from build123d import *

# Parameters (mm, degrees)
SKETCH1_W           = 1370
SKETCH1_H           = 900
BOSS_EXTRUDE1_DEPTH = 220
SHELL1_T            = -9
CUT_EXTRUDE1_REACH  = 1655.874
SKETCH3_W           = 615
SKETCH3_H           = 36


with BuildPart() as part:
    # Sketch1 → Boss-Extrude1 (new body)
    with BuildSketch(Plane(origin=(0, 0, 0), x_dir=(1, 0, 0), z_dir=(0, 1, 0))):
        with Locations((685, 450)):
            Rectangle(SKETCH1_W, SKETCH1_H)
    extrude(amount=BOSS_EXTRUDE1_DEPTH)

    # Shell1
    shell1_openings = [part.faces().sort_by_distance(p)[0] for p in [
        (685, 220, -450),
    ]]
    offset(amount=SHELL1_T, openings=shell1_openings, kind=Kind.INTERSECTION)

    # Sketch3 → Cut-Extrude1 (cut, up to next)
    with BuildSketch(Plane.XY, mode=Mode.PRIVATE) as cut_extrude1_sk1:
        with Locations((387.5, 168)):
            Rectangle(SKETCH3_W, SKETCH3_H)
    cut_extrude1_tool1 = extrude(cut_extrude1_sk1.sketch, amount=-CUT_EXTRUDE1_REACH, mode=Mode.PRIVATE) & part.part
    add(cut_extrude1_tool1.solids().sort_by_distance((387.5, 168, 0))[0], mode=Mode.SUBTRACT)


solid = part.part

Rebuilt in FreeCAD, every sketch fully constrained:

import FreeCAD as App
import Part
import Sketcher
Q = App.Units.Quantity


def faces_at(feature, points):
    """Names of the faces that lie closest to the given points."""
    faces = feature.Shape.Faces
    near = lambda p: min(range(len(faces)), key=lambda i: faces[i].distToShape(Part.Vertex(*p))[0])
    return sorted({f"Face{near(p) + 1}" for p in points})


def add_polygon(sketch, points):
    """Adds a closed chain of lines whose ends are joined by coincident constraints."""
    first, n = sketch.GeometryCount, len(points)
    for a, b in zip(points, points[1:] + points[:1]):
        sketch.addGeometry(Part.LineSegment(App.Vector(*a, 0), App.Vector(*b, 0)), False)
    for i in range(n):
        sketch.addConstraint(Sketcher.Constraint("Coincident", first + i, 2, first + (i + 1) % n, 1))

doc = App.newDocument("Part")
params = doc.addObject("Spreadsheet::Sheet", "Params")
for row, (alias, value) in enumerate([
    ("sketch1_width", "1370 mm"),
    ("sketch1_height", "900 mm"),
    ("pad1_length", "220 mm"),
    ("thickness_wall", "9 mm"),
    ("sketch2_width", "615 mm"),
    ("sketch2_height", "36 mm"),
], start=1):
    params.set(f"A{row}", alias)
    params.set(f"B{row}", "=" + value)
    params.setAlias(f"B{row}", alias)

body = doc.addObject("PartDesign::Body", "Body")

sketch1 = doc.addObject("Sketcher::SketchObject", "Sketch")
body.addObject(sketch1)
sketch1.AttachmentSupport = (doc.XZ_Plane, [""])
sketch1.MapMode = "FlatFace"
add_polygon(sketch1, [(0, -900), (0, 0), (1370, 0), (1370, -900)])
sketch1.addConstraint([
    Sketcher.Constraint("Vertical", 0),
    Sketcher.Constraint("Horizontal", 1),
    Sketcher.Constraint("Vertical", 2),
    Sketcher.Constraint("Horizontal", 3),
    Sketcher.Constraint("Coincident", 0, 2, -1, 1),
    Sketcher.Constraint("DistanceX", 1, 1, 1, 2, Q("1370 mm")),
    Sketcher.Constraint("DistanceY", 0, 1, 0, 2, Q("900 mm")),
])
sketch1.setExpression("Constraints[9]", "Params.sketch1_width")
sketch1.setExpression("Constraints[10]", "Params.sketch1_height")
pad1 = doc.addObject("PartDesign::Pad", "Pad")
body.addObject(pad1)
pad1.Profile = sketch1
pad1.setExpression("Length", "Params.pad1_length")
pad1.Reversed = True
doc.recompute()

thickness = doc.addObject("PartDesign::Thickness", "Thickness")
body.addObject(thickness)
thickness.Base = (pad1, faces_at(pad1, [(685, 220, -450)]))
thickness.setExpression("Value", "Params.thickness_wall")
thickness.Reversed = True
thickness.Join = "Intersection"

sketch2 = doc.addObject("Sketcher::SketchObject", "Sketch001")
body.addObject(sketch2)
sketch2.AttachmentSupport = (doc.XY_Plane, [""])
sketch2.MapMode = "FlatFace"
add_polygon(sketch2, [(80, 186), (80, 150), (695, 150), (695, 186)])
sketch2.addConstraint([
    Sketcher.Constraint("Vertical", 0),
    Sketcher.Constraint("Horizontal", 1),
    Sketcher.Constraint("Vertical", 2),
    Sketcher.Constraint("Horizontal", 3),
    Sketcher.Constraint("DistanceX", 1, 1, 1, 2, Q("615 mm")),
    Sketcher.Constraint("DistanceY", 0, 2, 0, 1, Q("36 mm")),
    Sketcher.Constraint("DistanceX", -1, 1, 0, 2, Q("80 mm")),
    Sketcher.Constraint("DistanceY", -1, 1, 0, 2, Q("150 mm")),
])
sketch2.setExpression("Constraints[8]", "Params.sketch2_width")
sketch2.setExpression("Constraints[9]", "Params.sketch2_height")
pocket1 = doc.addObject("PartDesign::Pocket", "Pocket")
body.addObject(pocket1)
pocket1.Profile = sketch2
pocket1.Type = "UpToFirst"

doc.recompute()
